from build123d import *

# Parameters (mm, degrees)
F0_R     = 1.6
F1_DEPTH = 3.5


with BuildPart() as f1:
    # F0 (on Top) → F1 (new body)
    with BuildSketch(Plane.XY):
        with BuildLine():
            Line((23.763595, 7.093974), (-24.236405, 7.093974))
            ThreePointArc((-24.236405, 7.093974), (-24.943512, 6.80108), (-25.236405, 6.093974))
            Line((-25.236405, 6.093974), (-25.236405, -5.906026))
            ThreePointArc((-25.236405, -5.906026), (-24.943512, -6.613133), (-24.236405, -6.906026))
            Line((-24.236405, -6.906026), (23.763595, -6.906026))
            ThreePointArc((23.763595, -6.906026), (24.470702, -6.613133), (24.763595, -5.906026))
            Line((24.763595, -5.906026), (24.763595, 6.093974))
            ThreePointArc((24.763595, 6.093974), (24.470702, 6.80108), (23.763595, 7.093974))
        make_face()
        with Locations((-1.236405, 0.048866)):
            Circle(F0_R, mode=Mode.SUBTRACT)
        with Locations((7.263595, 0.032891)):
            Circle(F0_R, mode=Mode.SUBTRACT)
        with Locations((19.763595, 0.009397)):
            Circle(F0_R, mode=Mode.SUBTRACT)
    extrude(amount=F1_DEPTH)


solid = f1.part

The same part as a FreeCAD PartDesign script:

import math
import FreeCAD as App
import Part
import Sketcher
Q = App.Units.Quantity

doc = App.newDocument("Part")
body = doc.addObject("PartDesign::Body", "Body")

# Sketch on XY plane
sketch1 = body.newObject("Sketcher::SketchObject", "Sketch")
sketch1.AttachmentSupport = (doc.getObject("XY_Plane"), [""])
sketch1.MapMode = "FlatFace"
sketch1.addGeometry(Part.LineSegment(App.Vector(23.763595, 7.093974, 0), App.Vector(-24.236405, 7.093974, 0)), False)
sketch1.addGeometry(Part.ArcOfCircle(Part.Circle(App.Vector(-24.236404, 6.093973, 0), App.Vector(0, 0, 1), 1.000001), math.radians(90.000055), math.radians(179.999945)), False)
sketch1.addGeometry(Part.LineSegment(App.Vector(-25.236405, 6.093974, 0), App.Vector(-25.236405, -5.906026, 0)), False)
sketch1.addGeometry(Part.ArcOfCircle(Part.Circle(App.Vector(-24.236406, -5.906027, 0), App.Vector(0, 0, 1), 0.999999), math.radians(179.999957), math.radians(270.000043)), False)
sketch1.addGeometry(Part.LineSegment(App.Vector(-24.236405, -6.906026, 0), App.Vector(23.763595, -6.906026, 0)), False)
sketch1.addGeometry(Part.ArcOfCircle(Part.Circle(App.Vector(23.763596, -5.906027, 0), App.Vector(0, 0, 1), 0.999999), math.radians(-90.000043), math.radians(0.000043)), False)
sketch1.addGeometry(Part.LineSegment(App.Vector(24.763595, -5.906026, 0), App.Vector(24.763595, 6.093974, 0)), False)
sketch1.addGeometry(Part.ArcOfCircle(Part.Circle(App.Vector(23.763594, 6.093973, 0), App.Vector(0, 0, 1), 1.000001), math.radians(0.000055), math.radians(89.999945)), False)
sketch1.addGeometry(Part.Circle(App.Vector(19.763595, 0.009397, 0), App.Vector(0, 0, 1), 1.6), False)
sketch1.addGeometry(Part.Circle(App.Vector(-1.236405, 0.048866, 0), App.Vector(0, 0, 1), 1.6), False)
sketch1.addGeometry(Part.Circle(App.Vector(7.263595, 0.032891, 0), App.Vector(0, 0, 1), 1.6), False)
sketch1.addConstraint(Sketcher.Constraint("Tangent", 0, 2, 1, 1))
sketch1.addConstraint(Sketcher.Constraint("Tangent", 1, 2, 2, 1))
sketch1.addConstraint(Sketcher.Constraint("Tangent", 2, 2, 3, 1))
sketch1.addConstraint(Sketcher.Constraint("Tangent", 3, 2, 4, 1))
sketch1.addConstraint(Sketcher.Constraint("Tangent", 4, 2, 5, 1))
sketch1.addConstraint(Sketcher.Constraint("Tangent", 5, 2, 6, 1))
sketch1.addConstraint(Sketcher.Constraint("Tangent", 6, 2, 7, 1))
sketch1.addConstraint(Sketcher.Constraint("Tangent", 7, 2, 0, 1))
sketch1.addConstraint(Sketcher.Constraint("Horizontal", 0))
sketch1.addConstraint(Sketcher.Constraint("Vertical", 2))
sketch1.addConstraint(Sketcher.Constraint("Horizontal", 4))
sketch1.addConstraint(Sketcher.Constraint("Vertical", 6))
sketch1.addConstraint(Sketcher.Constraint("Equal", 1, 3))
sketch1.addConstraint(Sketcher.Constraint("Equal", 3, 5))
sketch1.addConstraint(Sketcher.Constraint("Equal", 5, 7))
sketch1.addConstraint(Sketcher.Constraint("Equal", 8, 9))
sketch1.addConstraint(Sketcher.Constraint("Equal", 9, 10))
sketch1.addConstraint(Sketcher.Constraint("Radius", 1, Q("1.000001 mm")))
sketch1.addConstraint(Sketcher.Constraint("Diameter", 8, Q("3.2 mm")))
sketch1.addConstraint(Sketcher.Constraint("DistanceX", 0, 2, 0, 1, Q("48 mm")))
sketch1.addConstraint(Sketcher.Constraint("DistanceY", 2, 2, 2, 1, Q("12 mm")))
sketch1.addConstraint(Sketcher.Constraint("DistanceX", 8, 3, 5, 3, Q("4.000001 mm")))
sketch1.addConstraint(Sketcher.Constraint("DistanceX", 9, 3, 8, 3, Q("21 mm")))
sketch1.addConstraint(Sketcher.Constraint("DistanceX", 9, 3, 10, 3, Q("8.5 mm")))
sketch1.addConstraint(Sketcher.Constraint("DistanceY", -1, 1, 10, 3, Q("0.032891 mm")))
sketch1.addConstraint(Sketcher.Constraint("DistanceY", 8, 3, 9, 3, Q("0.039469 mm")))
sketch1.addConstraint(Sketcher.Constraint("DistanceX", 1, 3, -1, 1, Q("24.236404 mm")))
sketch1.addConstraint(Sketcher.Constraint("DistanceY", -1, 1, 1, 3, Q("6.093973 mm")))
sketch1.addConstraint(Sketcher.Constraint("DistanceY", -1, 1, 8, 3, Q("0.009397 mm")))
pad1 = body.newObject("PartDesign::Pad", "Pad")
pad1.Profile = sketch1
pad1.Length = 3.5

doc.recompute()
